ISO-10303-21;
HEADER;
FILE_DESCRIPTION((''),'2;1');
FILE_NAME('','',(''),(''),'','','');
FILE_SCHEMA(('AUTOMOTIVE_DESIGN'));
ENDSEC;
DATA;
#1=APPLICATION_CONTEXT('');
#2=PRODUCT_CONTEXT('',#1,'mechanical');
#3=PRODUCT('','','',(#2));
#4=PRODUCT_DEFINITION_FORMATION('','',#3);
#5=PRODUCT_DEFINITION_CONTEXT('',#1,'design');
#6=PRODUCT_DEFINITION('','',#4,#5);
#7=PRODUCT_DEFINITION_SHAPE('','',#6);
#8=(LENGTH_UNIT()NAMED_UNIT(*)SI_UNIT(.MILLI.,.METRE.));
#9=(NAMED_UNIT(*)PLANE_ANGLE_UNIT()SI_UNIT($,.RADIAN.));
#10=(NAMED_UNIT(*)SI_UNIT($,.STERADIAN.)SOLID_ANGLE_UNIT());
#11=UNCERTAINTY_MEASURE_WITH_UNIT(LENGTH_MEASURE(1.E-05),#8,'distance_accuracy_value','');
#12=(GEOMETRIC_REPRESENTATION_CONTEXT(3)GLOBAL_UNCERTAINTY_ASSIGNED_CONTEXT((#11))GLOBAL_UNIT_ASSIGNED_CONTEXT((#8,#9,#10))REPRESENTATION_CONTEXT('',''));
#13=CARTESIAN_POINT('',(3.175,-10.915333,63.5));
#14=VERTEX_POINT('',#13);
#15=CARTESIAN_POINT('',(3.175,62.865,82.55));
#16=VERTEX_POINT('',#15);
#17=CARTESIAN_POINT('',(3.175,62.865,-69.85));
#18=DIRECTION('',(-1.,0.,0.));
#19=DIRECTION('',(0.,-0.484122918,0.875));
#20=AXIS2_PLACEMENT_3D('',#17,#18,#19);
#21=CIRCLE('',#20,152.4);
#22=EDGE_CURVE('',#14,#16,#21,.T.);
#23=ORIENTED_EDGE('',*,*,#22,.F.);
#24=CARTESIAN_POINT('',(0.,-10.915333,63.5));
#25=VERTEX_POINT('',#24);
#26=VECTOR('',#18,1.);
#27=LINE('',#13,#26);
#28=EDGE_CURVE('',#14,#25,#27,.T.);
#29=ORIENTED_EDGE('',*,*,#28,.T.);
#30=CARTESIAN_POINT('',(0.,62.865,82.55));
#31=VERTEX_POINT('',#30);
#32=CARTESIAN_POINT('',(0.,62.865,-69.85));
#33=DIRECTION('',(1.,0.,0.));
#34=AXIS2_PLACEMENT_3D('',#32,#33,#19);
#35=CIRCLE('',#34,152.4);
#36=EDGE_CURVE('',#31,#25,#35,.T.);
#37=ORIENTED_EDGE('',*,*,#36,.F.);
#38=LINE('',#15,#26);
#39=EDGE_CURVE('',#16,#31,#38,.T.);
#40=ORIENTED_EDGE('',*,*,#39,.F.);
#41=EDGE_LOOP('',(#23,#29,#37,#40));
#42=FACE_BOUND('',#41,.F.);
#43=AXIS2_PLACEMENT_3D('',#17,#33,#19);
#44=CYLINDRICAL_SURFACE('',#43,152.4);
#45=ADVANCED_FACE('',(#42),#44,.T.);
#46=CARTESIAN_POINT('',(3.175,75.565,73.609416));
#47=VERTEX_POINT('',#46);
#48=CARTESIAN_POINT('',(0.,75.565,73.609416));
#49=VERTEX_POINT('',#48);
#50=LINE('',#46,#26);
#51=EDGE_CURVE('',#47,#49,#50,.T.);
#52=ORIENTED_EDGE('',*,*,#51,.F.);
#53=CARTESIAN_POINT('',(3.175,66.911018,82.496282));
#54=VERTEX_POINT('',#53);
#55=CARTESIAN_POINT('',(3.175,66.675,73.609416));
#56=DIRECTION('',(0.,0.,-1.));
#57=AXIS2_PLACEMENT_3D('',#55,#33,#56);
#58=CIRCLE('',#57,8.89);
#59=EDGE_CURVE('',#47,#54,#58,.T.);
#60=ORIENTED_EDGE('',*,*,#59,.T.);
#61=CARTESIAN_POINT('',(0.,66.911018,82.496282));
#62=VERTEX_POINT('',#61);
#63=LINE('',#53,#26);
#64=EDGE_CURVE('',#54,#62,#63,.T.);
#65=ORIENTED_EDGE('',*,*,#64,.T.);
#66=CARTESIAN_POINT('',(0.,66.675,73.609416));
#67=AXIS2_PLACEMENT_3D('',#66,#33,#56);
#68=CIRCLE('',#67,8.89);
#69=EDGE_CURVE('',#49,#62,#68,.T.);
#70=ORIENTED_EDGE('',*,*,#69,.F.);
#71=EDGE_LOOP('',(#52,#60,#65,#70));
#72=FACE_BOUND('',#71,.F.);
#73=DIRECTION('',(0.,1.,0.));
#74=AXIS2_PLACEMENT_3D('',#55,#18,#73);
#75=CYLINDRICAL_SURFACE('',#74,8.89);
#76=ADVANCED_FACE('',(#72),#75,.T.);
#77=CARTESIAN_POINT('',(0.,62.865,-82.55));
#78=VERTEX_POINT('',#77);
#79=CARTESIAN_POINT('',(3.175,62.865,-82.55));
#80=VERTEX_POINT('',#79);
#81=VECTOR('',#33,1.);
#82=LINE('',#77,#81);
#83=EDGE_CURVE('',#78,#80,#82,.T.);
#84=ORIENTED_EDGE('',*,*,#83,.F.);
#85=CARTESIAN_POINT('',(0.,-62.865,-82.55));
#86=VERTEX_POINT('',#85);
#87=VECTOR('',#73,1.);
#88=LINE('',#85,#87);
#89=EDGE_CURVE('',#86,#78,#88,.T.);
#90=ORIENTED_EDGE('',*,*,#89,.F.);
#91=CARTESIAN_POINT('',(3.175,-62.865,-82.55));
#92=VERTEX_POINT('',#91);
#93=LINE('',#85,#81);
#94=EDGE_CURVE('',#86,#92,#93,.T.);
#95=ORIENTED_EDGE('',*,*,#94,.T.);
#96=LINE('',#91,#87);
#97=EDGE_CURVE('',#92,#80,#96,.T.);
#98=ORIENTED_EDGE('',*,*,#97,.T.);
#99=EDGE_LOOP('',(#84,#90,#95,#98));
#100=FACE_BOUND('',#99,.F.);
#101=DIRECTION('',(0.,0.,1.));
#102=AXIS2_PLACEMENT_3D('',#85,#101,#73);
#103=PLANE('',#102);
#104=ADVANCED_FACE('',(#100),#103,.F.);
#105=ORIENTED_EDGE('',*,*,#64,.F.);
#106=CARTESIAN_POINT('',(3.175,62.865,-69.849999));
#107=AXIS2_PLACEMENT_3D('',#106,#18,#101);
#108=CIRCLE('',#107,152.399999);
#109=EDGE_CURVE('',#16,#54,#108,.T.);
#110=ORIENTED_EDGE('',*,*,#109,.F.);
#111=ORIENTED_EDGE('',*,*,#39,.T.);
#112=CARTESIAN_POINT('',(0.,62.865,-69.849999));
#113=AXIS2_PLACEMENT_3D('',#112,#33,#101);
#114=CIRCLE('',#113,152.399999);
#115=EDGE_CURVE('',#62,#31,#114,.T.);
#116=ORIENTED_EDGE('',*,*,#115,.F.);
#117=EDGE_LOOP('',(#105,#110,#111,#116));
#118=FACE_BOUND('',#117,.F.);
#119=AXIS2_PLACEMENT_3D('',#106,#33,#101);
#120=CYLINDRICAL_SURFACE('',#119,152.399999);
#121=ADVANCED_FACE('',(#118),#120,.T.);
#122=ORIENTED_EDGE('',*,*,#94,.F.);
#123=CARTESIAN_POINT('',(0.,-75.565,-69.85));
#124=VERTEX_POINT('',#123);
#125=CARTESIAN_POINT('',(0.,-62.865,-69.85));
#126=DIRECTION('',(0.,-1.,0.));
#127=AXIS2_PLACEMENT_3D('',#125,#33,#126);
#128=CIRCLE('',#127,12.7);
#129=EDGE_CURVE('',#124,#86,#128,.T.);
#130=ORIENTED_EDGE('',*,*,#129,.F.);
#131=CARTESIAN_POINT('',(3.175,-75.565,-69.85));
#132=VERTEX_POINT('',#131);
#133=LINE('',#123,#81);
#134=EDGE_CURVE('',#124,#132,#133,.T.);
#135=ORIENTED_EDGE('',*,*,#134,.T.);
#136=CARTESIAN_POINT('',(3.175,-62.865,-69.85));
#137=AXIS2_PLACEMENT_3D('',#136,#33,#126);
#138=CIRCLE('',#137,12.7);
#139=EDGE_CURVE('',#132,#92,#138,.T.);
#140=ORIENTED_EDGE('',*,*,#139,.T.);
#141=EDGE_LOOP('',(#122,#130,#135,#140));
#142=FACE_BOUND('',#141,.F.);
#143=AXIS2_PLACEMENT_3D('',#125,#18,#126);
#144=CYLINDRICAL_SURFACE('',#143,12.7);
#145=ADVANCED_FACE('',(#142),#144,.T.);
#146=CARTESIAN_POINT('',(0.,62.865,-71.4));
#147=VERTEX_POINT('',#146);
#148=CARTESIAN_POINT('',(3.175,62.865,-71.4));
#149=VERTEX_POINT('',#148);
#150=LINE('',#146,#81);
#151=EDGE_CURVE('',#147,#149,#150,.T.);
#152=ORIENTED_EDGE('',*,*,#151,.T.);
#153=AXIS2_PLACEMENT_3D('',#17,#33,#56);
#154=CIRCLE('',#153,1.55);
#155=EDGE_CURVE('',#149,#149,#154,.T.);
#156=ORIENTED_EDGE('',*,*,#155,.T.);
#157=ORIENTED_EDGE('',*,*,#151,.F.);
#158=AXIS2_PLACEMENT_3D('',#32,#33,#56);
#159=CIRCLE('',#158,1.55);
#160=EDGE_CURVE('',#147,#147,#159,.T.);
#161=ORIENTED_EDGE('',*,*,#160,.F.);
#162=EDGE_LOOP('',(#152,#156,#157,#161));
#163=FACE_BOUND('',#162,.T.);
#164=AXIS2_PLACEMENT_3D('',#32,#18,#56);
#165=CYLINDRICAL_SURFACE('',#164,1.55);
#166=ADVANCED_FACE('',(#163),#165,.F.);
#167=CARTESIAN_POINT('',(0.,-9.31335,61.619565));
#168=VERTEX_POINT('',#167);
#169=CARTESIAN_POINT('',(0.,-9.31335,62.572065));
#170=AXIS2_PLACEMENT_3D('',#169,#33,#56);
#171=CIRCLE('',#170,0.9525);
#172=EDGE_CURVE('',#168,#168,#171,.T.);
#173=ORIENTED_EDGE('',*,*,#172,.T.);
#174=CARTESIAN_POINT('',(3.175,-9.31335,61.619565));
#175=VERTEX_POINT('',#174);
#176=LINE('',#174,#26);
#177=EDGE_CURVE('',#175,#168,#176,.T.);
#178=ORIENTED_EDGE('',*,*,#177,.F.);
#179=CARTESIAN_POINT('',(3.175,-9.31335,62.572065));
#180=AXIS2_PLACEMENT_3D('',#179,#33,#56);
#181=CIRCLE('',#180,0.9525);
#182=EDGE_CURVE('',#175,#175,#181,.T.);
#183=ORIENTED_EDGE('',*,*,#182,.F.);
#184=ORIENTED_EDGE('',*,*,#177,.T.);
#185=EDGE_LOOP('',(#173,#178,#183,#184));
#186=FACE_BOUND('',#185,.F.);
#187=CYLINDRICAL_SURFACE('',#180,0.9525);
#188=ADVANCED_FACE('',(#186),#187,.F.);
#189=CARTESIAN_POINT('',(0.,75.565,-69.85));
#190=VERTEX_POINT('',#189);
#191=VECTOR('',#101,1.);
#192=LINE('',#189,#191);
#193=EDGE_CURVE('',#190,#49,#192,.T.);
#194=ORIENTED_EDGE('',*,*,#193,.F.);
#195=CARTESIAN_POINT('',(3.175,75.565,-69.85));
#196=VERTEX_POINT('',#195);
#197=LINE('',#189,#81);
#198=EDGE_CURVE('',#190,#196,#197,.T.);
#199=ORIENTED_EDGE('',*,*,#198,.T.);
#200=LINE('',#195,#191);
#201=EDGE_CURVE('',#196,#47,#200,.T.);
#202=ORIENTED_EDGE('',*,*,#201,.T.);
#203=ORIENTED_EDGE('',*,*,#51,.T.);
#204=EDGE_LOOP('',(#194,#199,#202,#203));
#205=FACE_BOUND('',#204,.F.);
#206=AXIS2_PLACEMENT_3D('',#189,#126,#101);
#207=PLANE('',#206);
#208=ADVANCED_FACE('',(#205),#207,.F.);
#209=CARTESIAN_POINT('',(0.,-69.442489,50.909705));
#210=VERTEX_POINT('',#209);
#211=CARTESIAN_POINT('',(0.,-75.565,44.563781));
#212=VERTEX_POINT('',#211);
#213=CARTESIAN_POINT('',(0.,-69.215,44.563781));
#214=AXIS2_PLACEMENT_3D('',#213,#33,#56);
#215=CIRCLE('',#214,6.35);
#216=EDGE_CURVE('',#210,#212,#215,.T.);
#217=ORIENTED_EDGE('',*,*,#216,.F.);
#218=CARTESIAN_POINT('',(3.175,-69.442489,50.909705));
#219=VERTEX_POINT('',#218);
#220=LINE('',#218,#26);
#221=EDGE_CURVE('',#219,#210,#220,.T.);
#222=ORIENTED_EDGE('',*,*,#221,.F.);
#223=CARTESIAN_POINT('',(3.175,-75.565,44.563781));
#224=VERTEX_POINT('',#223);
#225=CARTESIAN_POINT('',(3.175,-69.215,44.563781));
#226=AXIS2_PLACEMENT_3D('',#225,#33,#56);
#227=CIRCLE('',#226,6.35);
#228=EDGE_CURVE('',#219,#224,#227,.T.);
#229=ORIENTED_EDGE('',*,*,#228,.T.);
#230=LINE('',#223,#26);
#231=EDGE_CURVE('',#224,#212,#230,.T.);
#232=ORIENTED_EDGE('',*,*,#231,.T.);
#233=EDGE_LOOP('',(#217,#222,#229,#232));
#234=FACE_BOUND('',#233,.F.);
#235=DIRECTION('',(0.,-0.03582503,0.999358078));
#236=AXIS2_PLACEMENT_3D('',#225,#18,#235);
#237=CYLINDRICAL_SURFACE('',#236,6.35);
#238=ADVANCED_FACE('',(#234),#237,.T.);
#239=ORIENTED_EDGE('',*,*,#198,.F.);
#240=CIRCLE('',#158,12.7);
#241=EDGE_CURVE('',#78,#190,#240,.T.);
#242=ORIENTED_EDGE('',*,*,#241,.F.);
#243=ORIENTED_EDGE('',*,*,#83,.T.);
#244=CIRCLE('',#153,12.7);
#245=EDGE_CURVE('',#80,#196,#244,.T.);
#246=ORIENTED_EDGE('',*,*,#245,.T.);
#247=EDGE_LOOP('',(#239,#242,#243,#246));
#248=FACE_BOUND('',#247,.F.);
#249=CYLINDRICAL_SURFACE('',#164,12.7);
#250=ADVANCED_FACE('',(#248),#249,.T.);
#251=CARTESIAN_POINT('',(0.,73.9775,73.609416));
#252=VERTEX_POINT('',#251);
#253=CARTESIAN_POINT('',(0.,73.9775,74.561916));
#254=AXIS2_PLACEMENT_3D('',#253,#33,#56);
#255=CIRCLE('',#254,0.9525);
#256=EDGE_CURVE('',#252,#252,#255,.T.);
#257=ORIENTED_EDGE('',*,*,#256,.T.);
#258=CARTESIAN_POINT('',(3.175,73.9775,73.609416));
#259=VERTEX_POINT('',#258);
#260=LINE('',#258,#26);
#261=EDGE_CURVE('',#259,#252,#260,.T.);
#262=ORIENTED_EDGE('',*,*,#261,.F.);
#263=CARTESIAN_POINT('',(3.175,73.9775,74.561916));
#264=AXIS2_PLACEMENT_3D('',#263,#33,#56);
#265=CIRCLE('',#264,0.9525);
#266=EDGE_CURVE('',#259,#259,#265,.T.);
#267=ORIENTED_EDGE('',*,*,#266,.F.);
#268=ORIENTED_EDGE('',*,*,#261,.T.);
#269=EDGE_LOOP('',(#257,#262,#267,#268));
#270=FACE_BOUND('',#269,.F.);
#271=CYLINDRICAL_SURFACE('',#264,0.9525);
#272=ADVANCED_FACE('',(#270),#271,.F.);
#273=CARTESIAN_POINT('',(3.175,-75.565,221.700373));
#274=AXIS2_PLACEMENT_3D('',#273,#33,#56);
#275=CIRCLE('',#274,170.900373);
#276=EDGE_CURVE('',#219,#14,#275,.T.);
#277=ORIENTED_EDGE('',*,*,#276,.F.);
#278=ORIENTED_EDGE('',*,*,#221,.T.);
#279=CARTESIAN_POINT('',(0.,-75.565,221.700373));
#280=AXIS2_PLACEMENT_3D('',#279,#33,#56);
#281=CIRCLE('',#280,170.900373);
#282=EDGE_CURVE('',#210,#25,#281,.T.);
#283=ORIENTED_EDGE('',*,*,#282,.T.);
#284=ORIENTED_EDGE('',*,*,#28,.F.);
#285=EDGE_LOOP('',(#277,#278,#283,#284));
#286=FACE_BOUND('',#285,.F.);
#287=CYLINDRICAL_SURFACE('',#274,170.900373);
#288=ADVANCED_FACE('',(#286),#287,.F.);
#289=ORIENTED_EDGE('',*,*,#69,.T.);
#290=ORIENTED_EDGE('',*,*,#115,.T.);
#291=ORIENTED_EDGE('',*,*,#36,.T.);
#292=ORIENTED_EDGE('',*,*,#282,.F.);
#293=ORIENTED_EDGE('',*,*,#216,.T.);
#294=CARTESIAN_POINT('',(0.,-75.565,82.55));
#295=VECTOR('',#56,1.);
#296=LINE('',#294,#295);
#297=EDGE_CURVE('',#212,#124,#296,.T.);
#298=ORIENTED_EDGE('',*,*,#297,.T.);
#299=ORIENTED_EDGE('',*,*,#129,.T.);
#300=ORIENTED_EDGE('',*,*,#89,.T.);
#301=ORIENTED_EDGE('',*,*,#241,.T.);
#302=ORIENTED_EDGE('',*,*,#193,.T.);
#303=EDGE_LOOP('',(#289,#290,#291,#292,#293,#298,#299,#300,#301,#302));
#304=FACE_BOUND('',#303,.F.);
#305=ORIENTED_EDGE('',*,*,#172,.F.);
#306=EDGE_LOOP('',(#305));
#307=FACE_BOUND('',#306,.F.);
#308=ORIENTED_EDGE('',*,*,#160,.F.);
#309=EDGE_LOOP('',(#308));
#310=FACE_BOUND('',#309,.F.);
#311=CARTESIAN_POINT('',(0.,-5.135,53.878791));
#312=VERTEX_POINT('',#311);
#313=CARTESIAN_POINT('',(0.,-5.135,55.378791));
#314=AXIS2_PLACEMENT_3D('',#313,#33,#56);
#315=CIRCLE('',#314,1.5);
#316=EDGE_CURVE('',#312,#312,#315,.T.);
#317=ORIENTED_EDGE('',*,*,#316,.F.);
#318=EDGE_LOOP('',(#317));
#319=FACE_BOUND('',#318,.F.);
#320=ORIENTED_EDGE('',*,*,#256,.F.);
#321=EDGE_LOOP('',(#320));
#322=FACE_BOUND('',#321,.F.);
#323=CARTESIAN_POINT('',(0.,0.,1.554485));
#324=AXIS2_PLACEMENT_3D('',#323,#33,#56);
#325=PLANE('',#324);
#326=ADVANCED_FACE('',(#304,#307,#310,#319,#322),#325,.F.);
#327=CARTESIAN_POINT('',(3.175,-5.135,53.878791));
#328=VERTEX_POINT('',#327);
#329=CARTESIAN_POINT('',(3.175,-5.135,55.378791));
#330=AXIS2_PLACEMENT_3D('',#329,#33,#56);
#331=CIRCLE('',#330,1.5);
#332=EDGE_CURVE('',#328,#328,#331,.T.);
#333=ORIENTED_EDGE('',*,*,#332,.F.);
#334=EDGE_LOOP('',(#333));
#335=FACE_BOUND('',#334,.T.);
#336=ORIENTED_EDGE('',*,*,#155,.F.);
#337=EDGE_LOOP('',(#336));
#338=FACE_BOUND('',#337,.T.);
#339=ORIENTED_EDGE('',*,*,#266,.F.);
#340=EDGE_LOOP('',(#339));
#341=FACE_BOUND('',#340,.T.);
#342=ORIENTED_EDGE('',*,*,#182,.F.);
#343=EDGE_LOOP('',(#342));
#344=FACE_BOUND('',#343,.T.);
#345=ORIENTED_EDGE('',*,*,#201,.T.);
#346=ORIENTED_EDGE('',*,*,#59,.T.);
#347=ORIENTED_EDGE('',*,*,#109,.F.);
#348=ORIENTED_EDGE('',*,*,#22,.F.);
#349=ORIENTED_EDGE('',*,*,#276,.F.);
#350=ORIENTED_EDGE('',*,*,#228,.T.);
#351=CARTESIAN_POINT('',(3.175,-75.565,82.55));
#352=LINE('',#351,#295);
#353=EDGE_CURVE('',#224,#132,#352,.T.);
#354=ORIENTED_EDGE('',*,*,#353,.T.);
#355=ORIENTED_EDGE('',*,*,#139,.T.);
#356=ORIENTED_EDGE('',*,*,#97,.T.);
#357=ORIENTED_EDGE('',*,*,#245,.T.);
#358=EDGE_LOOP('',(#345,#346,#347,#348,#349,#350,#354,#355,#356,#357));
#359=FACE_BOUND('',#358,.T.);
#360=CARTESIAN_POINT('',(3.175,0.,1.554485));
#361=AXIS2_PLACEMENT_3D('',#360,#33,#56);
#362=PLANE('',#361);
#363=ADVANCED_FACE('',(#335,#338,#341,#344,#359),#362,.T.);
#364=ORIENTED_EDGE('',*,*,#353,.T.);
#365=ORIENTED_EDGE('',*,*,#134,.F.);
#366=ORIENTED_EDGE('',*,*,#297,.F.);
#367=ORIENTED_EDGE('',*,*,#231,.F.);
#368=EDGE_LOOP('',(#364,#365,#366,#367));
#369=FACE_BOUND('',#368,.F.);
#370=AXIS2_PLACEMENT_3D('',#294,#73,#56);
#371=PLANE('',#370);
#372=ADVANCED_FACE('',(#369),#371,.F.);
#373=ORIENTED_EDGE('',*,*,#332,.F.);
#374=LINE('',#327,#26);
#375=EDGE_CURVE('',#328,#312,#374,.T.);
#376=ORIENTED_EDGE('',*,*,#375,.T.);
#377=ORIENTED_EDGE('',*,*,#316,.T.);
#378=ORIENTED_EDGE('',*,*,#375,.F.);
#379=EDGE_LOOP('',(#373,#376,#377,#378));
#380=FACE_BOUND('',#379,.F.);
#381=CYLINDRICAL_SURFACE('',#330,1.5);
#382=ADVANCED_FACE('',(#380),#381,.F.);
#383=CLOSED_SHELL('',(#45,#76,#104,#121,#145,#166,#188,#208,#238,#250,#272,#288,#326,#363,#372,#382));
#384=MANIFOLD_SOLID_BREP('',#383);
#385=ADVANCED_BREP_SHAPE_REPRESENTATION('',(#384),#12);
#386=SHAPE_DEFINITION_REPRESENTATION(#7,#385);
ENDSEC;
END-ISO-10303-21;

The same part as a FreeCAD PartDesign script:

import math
import FreeCAD as App
import Part
import Sketcher
Q = App.Units.Quantity


def edges_at(feature, points):
    """Names of the edges that pass closest to the given points."""
    edges = feature.Shape.Edges
    near = lambda p: min(range(len(edges)), key=lambda i: edges[i].distToShape(Part.Vertex(*p))[0])
    return sorted({f"Edge{near(p) + 1}" for p in points})

doc = App.newDocument("Part")
body = doc.addObject("PartDesign::Body", "Body")

sketch1 = doc.addObject("Sketcher::SketchObject", "Sketch")
body.addObject(sketch1)
sketch1.AttachmentSupport = (doc.YZ_Plane, [""])
sketch1.MapMode = "FlatFace"
sketch1.addGeometry([
    Part.LineSegment(App.Vector(75.565, -69.85, 0), App.Vector(75.565, 82.55, 0)),
    Part.LineSegment(App.Vector(75.565, 82.55, 0), App.Vector(-75.565, 82.55, 0)),
    Part.LineSegment(App.Vector(-75.565, 82.55, 0), App.Vector(-75.565, -69.85, 0)),
    Part.ArcOfCircle(Part.Circle(App.Vector(-62.865, -69.85, 0), App.Vector(0, 0, 1), 12.7), math.radians(180), math.radians(270)),
    Part.LineSegment(App.Vector(-62.865, -82.55, 0), App.Vector(62.865, -82.55, 0)),
    Part.ArcOfCircle(Part.Circle(App.Vector(62.865, -69.85, 0), App.Vector(0, 0, 1), 12.7), math.radians(-90), math.radians(0)),
    Part.Circle(App.Vector(62.865, -69.85, 0), App.Vector(0, 0, 1), 1.55),
], False)
sketch1.addConstraint([
    Sketcher.Constraint("Coincident", 0, 2, 1, 1),
    Sketcher.Constraint("Coincident", 1, 2, 2, 1),
    Sketcher.Constraint("Tangent", 2, 2, 3, 1),
    Sketcher.Constraint("Tangent", 3, 2, 4, 1),
    Sketcher.Constraint("Tangent", 4, 2, 5, 1),
    Sketcher.Constraint("Tangent", 5, 2, 0, 1),
    Sketcher.Constraint("Vertical", 0),
    Sketcher.Constraint("Horizontal", 1),
    Sketcher.Constraint("Vertical", 2),
    Sketcher.Constraint("Horizontal", 4),
    Sketcher.Constraint("Coincident", 6, 3, 5, 3),
    Sketcher.Constraint("Equal", 3, 5),
    Sketcher.Constraint("Radius", 3, Q("0.5 in")),
    Sketcher.Constraint("DistanceY", 0, 1, 0, 2, Q("6 in")),
    Sketcher.Constraint("DistanceX", 1, 2, 1, 1, Q("5.95 in")),
    Sketcher.Constraint("Diameter", 6, 3.1),
    Sketcher.Constraint("DistanceY", 3, 3, -1, 1, Q("2.75 in")),
    Sketcher.Constraint("DistanceX", 3, 3, -1, 1, Q("2.475 in")),
])
pad1 = doc.addObject("PartDesign::Pad", "Pad")
body.addObject(pad1)
pad1.Profile = sketch1
pad1.Length = Q("0.125 in")

sketch2 = doc.addObject("Sketcher::SketchObject", "Sketch001")
body.addObject(sketch2)
sketch2.AttachmentSupport = (doc.YZ_Plane, [""])
sketch2.MapMode = "FlatFace"
sketch2.AttachmentOffset = App.Placement(App.Vector(0, 0, 0.125 * 25.4), App.Rotation())
sketch2.addGeometry([
    Part.ArcOfCircle(Part.Circle(App.Vector(-75.565, 221.700373, 0), App.Vector(0, 0, 1), 170.900373), math.radians(-90), math.radians(-67.772284)),
    Part.ArcOfCircle(Part.Circle(App.Vector(62.865, -69.85, 0), App.Vector(0, 0, 1), 152.4), math.radians(90), math.radians(118.955024)),
    Part.LineSegment(App.Vector(62.865, 82.55, 0), App.Vector(-75.565, 82.55, 0)),
    Part.LineSegment(App.Vector(-75.565, 82.55, 0), App.Vector(-75.565, 50.8, 0)),
    Part.LineSegment(App.Vector(75.565, 82.55, 0), App.Vector(62.865, 82.55, 0)),
    Part.ArcOfCircle(Part.Circle(App.Vector(62.865, -69.849999, 0), App.Vector(0, 0, 1), 152.399999), math.radians(85.219808), math.radians(90)),
    Part.LineSegment(App.Vector(75.565, 82.019911, 0), App.Vector(75.565, 82.55, 0)),
], False)
sketch2.addConstraint([
    Sketcher.Constraint("Coincident", 0, 2, 1, 2),
    Sketcher.Constraint("Tangent", 1, 1, 2, 1),
    Sketcher.Constraint("Coincident", 2, 2, 3, 1),
    Sketcher.Constraint("Coincident", 3, 2, 0, 1),
    Sketcher.Constraint("Tangent", 4, 2, 5, 2),
    Sketcher.Constraint("Coincident", 5, 1, 6, 1),
    Sketcher.Constraint("Coincident", 6, 2, 4, 1),
    Sketcher.Constraint("Horizontal", 2),
    Sketcher.Constraint("Vertical", 3),
    Sketcher.Constraint("Horizontal", 4),
    Sketcher.Constraint("Vertical", 6),
    Sketcher.Constraint("Coincident", 5, 3, 1, 3),
    Sketcher.Constraint("Equal", 1, 5),
    Sketcher.Constraint("Vertical", 0, 3, 2, 2),
    Sketcher.Constraint("Radius", 1, Q("6 in")),
    Sketcher.Constraint("DistanceX", 4, 2, 4, 1, Q("0.5 in")),
    Sketcher.Constraint("DistanceY", -1, 1, 3, 2, Q("2 in")),
    Sketcher.Constraint("DistanceX", 2, 2, 2, 1, Q("5.45 in")),
    Sketcher.Constraint("DistanceY", 3, 2, 3, 1, Q("1.25 in")),
    Sketcher.Constraint("DistanceY", -1, 1, 0, 2, Q("2.5 in")),
    Sketcher.Constraint("DistanceX", 0, 3, -1, 1, Q("2.975 in")),
])
pocket1 = doc.addObject("PartDesign::Pocket", "Pocket")
body.addObject(pocket1)
pocket1.Profile = sketch2
pocket1.Type = "ThroughAll"
doc.recompute()

fillet = doc.addObject("PartDesign::Fillet", "Fillet")
body.addObject(fillet)
fillet.Base = (pocket1, edges_at(pocket1, [(1.587, 75.565, 82.02)]))
fillet.Radius = Q("0.35 in")

sketch3 = doc.addObject("Sketcher::SketchObject", "Sketch002")
body.addObject(sketch3)
sketch3.AttachmentSupport = (doc.YZ_Plane, [""])
sketch3.MapMode = "FlatFace"
sketch3.AttachmentOffset = App.Placement(App.Vector(0, 0, 0.125 * 25.4), App.Rotation())
sketch3.addGeometry(Part.Circle(App.Vector(-5.135, 55.378791, 0), App.Vector(0, 0, 1), 1.5), False)
sketch3.addConstraint([
    Sketcher.Constraint("Diameter", 0, 3.0),
    Sketcher.Constraint("DistanceX", 0, 3, -1, 1, 5.135),
    Sketcher.Constraint("DistanceY", -1, 1, 0, 3, 55.378791),
])
pocket2 = doc.addObject("PartDesign::Pocket", "Pocket001")
body.addObject(pocket2)
pocket2.Profile = sketch3
pocket2.Type = "ThroughAll"

sketch4 = doc.addObject("Sketcher::SketchObject", "Sketch003")
body.addObject(sketch4)
sketch4.AttachmentSupport = (doc.YZ_Plane, [""])
sketch4.MapMode = "FlatFace"
sketch4.AttachmentOffset = App.Placement(App.Vector(0, 0, 0.125 * 25.4), App.Rotation())
sketch4.addGeometry([
    Part.Circle(App.Vector(73.9775, 74.561916, 0), App.Vector(0, 0, 1), 0.9525),
    Part.Circle(App.Vector(-9.31335, 62.572065, 0), App.Vector(0, 0, 1), 0.9525),
], False)
sketch4.addConstraint([
    Sketcher.Constraint("Equal", 0, 1),
    Sketcher.Constraint("Diameter", 0, Q("0.075 in")),
    Sketcher.Constraint("DistanceX", -1, 1, 0, 3, Q("2.9125 in")),
    Sketcher.Constraint("DistanceX", 1, 3, -1, 1, 9.31335),
    Sketcher.Constraint("DistanceY", 1, 3, 0, 3, 11.989851),
    Sketcher.Constraint("DistanceY", -1, 1, 0, 3, 74.561916),
])
pocket3 = doc.addObject("PartDesign::Pocket", "Pocket002")
body.addObject(pocket3)
pocket3.Profile = sketch4
pocket3.Type = "ThroughAll"
doc.recompute()

fillet2 = doc.addObject("PartDesign::Fillet", "Fillet001")
body.addObject(fillet2)
fillet2.Base = (pocket3, edges_at(pocket3, [(1.587, -75.565, 50.8)]))
fillet2.Radius = Q("0.25 in")

doc.recompute()
